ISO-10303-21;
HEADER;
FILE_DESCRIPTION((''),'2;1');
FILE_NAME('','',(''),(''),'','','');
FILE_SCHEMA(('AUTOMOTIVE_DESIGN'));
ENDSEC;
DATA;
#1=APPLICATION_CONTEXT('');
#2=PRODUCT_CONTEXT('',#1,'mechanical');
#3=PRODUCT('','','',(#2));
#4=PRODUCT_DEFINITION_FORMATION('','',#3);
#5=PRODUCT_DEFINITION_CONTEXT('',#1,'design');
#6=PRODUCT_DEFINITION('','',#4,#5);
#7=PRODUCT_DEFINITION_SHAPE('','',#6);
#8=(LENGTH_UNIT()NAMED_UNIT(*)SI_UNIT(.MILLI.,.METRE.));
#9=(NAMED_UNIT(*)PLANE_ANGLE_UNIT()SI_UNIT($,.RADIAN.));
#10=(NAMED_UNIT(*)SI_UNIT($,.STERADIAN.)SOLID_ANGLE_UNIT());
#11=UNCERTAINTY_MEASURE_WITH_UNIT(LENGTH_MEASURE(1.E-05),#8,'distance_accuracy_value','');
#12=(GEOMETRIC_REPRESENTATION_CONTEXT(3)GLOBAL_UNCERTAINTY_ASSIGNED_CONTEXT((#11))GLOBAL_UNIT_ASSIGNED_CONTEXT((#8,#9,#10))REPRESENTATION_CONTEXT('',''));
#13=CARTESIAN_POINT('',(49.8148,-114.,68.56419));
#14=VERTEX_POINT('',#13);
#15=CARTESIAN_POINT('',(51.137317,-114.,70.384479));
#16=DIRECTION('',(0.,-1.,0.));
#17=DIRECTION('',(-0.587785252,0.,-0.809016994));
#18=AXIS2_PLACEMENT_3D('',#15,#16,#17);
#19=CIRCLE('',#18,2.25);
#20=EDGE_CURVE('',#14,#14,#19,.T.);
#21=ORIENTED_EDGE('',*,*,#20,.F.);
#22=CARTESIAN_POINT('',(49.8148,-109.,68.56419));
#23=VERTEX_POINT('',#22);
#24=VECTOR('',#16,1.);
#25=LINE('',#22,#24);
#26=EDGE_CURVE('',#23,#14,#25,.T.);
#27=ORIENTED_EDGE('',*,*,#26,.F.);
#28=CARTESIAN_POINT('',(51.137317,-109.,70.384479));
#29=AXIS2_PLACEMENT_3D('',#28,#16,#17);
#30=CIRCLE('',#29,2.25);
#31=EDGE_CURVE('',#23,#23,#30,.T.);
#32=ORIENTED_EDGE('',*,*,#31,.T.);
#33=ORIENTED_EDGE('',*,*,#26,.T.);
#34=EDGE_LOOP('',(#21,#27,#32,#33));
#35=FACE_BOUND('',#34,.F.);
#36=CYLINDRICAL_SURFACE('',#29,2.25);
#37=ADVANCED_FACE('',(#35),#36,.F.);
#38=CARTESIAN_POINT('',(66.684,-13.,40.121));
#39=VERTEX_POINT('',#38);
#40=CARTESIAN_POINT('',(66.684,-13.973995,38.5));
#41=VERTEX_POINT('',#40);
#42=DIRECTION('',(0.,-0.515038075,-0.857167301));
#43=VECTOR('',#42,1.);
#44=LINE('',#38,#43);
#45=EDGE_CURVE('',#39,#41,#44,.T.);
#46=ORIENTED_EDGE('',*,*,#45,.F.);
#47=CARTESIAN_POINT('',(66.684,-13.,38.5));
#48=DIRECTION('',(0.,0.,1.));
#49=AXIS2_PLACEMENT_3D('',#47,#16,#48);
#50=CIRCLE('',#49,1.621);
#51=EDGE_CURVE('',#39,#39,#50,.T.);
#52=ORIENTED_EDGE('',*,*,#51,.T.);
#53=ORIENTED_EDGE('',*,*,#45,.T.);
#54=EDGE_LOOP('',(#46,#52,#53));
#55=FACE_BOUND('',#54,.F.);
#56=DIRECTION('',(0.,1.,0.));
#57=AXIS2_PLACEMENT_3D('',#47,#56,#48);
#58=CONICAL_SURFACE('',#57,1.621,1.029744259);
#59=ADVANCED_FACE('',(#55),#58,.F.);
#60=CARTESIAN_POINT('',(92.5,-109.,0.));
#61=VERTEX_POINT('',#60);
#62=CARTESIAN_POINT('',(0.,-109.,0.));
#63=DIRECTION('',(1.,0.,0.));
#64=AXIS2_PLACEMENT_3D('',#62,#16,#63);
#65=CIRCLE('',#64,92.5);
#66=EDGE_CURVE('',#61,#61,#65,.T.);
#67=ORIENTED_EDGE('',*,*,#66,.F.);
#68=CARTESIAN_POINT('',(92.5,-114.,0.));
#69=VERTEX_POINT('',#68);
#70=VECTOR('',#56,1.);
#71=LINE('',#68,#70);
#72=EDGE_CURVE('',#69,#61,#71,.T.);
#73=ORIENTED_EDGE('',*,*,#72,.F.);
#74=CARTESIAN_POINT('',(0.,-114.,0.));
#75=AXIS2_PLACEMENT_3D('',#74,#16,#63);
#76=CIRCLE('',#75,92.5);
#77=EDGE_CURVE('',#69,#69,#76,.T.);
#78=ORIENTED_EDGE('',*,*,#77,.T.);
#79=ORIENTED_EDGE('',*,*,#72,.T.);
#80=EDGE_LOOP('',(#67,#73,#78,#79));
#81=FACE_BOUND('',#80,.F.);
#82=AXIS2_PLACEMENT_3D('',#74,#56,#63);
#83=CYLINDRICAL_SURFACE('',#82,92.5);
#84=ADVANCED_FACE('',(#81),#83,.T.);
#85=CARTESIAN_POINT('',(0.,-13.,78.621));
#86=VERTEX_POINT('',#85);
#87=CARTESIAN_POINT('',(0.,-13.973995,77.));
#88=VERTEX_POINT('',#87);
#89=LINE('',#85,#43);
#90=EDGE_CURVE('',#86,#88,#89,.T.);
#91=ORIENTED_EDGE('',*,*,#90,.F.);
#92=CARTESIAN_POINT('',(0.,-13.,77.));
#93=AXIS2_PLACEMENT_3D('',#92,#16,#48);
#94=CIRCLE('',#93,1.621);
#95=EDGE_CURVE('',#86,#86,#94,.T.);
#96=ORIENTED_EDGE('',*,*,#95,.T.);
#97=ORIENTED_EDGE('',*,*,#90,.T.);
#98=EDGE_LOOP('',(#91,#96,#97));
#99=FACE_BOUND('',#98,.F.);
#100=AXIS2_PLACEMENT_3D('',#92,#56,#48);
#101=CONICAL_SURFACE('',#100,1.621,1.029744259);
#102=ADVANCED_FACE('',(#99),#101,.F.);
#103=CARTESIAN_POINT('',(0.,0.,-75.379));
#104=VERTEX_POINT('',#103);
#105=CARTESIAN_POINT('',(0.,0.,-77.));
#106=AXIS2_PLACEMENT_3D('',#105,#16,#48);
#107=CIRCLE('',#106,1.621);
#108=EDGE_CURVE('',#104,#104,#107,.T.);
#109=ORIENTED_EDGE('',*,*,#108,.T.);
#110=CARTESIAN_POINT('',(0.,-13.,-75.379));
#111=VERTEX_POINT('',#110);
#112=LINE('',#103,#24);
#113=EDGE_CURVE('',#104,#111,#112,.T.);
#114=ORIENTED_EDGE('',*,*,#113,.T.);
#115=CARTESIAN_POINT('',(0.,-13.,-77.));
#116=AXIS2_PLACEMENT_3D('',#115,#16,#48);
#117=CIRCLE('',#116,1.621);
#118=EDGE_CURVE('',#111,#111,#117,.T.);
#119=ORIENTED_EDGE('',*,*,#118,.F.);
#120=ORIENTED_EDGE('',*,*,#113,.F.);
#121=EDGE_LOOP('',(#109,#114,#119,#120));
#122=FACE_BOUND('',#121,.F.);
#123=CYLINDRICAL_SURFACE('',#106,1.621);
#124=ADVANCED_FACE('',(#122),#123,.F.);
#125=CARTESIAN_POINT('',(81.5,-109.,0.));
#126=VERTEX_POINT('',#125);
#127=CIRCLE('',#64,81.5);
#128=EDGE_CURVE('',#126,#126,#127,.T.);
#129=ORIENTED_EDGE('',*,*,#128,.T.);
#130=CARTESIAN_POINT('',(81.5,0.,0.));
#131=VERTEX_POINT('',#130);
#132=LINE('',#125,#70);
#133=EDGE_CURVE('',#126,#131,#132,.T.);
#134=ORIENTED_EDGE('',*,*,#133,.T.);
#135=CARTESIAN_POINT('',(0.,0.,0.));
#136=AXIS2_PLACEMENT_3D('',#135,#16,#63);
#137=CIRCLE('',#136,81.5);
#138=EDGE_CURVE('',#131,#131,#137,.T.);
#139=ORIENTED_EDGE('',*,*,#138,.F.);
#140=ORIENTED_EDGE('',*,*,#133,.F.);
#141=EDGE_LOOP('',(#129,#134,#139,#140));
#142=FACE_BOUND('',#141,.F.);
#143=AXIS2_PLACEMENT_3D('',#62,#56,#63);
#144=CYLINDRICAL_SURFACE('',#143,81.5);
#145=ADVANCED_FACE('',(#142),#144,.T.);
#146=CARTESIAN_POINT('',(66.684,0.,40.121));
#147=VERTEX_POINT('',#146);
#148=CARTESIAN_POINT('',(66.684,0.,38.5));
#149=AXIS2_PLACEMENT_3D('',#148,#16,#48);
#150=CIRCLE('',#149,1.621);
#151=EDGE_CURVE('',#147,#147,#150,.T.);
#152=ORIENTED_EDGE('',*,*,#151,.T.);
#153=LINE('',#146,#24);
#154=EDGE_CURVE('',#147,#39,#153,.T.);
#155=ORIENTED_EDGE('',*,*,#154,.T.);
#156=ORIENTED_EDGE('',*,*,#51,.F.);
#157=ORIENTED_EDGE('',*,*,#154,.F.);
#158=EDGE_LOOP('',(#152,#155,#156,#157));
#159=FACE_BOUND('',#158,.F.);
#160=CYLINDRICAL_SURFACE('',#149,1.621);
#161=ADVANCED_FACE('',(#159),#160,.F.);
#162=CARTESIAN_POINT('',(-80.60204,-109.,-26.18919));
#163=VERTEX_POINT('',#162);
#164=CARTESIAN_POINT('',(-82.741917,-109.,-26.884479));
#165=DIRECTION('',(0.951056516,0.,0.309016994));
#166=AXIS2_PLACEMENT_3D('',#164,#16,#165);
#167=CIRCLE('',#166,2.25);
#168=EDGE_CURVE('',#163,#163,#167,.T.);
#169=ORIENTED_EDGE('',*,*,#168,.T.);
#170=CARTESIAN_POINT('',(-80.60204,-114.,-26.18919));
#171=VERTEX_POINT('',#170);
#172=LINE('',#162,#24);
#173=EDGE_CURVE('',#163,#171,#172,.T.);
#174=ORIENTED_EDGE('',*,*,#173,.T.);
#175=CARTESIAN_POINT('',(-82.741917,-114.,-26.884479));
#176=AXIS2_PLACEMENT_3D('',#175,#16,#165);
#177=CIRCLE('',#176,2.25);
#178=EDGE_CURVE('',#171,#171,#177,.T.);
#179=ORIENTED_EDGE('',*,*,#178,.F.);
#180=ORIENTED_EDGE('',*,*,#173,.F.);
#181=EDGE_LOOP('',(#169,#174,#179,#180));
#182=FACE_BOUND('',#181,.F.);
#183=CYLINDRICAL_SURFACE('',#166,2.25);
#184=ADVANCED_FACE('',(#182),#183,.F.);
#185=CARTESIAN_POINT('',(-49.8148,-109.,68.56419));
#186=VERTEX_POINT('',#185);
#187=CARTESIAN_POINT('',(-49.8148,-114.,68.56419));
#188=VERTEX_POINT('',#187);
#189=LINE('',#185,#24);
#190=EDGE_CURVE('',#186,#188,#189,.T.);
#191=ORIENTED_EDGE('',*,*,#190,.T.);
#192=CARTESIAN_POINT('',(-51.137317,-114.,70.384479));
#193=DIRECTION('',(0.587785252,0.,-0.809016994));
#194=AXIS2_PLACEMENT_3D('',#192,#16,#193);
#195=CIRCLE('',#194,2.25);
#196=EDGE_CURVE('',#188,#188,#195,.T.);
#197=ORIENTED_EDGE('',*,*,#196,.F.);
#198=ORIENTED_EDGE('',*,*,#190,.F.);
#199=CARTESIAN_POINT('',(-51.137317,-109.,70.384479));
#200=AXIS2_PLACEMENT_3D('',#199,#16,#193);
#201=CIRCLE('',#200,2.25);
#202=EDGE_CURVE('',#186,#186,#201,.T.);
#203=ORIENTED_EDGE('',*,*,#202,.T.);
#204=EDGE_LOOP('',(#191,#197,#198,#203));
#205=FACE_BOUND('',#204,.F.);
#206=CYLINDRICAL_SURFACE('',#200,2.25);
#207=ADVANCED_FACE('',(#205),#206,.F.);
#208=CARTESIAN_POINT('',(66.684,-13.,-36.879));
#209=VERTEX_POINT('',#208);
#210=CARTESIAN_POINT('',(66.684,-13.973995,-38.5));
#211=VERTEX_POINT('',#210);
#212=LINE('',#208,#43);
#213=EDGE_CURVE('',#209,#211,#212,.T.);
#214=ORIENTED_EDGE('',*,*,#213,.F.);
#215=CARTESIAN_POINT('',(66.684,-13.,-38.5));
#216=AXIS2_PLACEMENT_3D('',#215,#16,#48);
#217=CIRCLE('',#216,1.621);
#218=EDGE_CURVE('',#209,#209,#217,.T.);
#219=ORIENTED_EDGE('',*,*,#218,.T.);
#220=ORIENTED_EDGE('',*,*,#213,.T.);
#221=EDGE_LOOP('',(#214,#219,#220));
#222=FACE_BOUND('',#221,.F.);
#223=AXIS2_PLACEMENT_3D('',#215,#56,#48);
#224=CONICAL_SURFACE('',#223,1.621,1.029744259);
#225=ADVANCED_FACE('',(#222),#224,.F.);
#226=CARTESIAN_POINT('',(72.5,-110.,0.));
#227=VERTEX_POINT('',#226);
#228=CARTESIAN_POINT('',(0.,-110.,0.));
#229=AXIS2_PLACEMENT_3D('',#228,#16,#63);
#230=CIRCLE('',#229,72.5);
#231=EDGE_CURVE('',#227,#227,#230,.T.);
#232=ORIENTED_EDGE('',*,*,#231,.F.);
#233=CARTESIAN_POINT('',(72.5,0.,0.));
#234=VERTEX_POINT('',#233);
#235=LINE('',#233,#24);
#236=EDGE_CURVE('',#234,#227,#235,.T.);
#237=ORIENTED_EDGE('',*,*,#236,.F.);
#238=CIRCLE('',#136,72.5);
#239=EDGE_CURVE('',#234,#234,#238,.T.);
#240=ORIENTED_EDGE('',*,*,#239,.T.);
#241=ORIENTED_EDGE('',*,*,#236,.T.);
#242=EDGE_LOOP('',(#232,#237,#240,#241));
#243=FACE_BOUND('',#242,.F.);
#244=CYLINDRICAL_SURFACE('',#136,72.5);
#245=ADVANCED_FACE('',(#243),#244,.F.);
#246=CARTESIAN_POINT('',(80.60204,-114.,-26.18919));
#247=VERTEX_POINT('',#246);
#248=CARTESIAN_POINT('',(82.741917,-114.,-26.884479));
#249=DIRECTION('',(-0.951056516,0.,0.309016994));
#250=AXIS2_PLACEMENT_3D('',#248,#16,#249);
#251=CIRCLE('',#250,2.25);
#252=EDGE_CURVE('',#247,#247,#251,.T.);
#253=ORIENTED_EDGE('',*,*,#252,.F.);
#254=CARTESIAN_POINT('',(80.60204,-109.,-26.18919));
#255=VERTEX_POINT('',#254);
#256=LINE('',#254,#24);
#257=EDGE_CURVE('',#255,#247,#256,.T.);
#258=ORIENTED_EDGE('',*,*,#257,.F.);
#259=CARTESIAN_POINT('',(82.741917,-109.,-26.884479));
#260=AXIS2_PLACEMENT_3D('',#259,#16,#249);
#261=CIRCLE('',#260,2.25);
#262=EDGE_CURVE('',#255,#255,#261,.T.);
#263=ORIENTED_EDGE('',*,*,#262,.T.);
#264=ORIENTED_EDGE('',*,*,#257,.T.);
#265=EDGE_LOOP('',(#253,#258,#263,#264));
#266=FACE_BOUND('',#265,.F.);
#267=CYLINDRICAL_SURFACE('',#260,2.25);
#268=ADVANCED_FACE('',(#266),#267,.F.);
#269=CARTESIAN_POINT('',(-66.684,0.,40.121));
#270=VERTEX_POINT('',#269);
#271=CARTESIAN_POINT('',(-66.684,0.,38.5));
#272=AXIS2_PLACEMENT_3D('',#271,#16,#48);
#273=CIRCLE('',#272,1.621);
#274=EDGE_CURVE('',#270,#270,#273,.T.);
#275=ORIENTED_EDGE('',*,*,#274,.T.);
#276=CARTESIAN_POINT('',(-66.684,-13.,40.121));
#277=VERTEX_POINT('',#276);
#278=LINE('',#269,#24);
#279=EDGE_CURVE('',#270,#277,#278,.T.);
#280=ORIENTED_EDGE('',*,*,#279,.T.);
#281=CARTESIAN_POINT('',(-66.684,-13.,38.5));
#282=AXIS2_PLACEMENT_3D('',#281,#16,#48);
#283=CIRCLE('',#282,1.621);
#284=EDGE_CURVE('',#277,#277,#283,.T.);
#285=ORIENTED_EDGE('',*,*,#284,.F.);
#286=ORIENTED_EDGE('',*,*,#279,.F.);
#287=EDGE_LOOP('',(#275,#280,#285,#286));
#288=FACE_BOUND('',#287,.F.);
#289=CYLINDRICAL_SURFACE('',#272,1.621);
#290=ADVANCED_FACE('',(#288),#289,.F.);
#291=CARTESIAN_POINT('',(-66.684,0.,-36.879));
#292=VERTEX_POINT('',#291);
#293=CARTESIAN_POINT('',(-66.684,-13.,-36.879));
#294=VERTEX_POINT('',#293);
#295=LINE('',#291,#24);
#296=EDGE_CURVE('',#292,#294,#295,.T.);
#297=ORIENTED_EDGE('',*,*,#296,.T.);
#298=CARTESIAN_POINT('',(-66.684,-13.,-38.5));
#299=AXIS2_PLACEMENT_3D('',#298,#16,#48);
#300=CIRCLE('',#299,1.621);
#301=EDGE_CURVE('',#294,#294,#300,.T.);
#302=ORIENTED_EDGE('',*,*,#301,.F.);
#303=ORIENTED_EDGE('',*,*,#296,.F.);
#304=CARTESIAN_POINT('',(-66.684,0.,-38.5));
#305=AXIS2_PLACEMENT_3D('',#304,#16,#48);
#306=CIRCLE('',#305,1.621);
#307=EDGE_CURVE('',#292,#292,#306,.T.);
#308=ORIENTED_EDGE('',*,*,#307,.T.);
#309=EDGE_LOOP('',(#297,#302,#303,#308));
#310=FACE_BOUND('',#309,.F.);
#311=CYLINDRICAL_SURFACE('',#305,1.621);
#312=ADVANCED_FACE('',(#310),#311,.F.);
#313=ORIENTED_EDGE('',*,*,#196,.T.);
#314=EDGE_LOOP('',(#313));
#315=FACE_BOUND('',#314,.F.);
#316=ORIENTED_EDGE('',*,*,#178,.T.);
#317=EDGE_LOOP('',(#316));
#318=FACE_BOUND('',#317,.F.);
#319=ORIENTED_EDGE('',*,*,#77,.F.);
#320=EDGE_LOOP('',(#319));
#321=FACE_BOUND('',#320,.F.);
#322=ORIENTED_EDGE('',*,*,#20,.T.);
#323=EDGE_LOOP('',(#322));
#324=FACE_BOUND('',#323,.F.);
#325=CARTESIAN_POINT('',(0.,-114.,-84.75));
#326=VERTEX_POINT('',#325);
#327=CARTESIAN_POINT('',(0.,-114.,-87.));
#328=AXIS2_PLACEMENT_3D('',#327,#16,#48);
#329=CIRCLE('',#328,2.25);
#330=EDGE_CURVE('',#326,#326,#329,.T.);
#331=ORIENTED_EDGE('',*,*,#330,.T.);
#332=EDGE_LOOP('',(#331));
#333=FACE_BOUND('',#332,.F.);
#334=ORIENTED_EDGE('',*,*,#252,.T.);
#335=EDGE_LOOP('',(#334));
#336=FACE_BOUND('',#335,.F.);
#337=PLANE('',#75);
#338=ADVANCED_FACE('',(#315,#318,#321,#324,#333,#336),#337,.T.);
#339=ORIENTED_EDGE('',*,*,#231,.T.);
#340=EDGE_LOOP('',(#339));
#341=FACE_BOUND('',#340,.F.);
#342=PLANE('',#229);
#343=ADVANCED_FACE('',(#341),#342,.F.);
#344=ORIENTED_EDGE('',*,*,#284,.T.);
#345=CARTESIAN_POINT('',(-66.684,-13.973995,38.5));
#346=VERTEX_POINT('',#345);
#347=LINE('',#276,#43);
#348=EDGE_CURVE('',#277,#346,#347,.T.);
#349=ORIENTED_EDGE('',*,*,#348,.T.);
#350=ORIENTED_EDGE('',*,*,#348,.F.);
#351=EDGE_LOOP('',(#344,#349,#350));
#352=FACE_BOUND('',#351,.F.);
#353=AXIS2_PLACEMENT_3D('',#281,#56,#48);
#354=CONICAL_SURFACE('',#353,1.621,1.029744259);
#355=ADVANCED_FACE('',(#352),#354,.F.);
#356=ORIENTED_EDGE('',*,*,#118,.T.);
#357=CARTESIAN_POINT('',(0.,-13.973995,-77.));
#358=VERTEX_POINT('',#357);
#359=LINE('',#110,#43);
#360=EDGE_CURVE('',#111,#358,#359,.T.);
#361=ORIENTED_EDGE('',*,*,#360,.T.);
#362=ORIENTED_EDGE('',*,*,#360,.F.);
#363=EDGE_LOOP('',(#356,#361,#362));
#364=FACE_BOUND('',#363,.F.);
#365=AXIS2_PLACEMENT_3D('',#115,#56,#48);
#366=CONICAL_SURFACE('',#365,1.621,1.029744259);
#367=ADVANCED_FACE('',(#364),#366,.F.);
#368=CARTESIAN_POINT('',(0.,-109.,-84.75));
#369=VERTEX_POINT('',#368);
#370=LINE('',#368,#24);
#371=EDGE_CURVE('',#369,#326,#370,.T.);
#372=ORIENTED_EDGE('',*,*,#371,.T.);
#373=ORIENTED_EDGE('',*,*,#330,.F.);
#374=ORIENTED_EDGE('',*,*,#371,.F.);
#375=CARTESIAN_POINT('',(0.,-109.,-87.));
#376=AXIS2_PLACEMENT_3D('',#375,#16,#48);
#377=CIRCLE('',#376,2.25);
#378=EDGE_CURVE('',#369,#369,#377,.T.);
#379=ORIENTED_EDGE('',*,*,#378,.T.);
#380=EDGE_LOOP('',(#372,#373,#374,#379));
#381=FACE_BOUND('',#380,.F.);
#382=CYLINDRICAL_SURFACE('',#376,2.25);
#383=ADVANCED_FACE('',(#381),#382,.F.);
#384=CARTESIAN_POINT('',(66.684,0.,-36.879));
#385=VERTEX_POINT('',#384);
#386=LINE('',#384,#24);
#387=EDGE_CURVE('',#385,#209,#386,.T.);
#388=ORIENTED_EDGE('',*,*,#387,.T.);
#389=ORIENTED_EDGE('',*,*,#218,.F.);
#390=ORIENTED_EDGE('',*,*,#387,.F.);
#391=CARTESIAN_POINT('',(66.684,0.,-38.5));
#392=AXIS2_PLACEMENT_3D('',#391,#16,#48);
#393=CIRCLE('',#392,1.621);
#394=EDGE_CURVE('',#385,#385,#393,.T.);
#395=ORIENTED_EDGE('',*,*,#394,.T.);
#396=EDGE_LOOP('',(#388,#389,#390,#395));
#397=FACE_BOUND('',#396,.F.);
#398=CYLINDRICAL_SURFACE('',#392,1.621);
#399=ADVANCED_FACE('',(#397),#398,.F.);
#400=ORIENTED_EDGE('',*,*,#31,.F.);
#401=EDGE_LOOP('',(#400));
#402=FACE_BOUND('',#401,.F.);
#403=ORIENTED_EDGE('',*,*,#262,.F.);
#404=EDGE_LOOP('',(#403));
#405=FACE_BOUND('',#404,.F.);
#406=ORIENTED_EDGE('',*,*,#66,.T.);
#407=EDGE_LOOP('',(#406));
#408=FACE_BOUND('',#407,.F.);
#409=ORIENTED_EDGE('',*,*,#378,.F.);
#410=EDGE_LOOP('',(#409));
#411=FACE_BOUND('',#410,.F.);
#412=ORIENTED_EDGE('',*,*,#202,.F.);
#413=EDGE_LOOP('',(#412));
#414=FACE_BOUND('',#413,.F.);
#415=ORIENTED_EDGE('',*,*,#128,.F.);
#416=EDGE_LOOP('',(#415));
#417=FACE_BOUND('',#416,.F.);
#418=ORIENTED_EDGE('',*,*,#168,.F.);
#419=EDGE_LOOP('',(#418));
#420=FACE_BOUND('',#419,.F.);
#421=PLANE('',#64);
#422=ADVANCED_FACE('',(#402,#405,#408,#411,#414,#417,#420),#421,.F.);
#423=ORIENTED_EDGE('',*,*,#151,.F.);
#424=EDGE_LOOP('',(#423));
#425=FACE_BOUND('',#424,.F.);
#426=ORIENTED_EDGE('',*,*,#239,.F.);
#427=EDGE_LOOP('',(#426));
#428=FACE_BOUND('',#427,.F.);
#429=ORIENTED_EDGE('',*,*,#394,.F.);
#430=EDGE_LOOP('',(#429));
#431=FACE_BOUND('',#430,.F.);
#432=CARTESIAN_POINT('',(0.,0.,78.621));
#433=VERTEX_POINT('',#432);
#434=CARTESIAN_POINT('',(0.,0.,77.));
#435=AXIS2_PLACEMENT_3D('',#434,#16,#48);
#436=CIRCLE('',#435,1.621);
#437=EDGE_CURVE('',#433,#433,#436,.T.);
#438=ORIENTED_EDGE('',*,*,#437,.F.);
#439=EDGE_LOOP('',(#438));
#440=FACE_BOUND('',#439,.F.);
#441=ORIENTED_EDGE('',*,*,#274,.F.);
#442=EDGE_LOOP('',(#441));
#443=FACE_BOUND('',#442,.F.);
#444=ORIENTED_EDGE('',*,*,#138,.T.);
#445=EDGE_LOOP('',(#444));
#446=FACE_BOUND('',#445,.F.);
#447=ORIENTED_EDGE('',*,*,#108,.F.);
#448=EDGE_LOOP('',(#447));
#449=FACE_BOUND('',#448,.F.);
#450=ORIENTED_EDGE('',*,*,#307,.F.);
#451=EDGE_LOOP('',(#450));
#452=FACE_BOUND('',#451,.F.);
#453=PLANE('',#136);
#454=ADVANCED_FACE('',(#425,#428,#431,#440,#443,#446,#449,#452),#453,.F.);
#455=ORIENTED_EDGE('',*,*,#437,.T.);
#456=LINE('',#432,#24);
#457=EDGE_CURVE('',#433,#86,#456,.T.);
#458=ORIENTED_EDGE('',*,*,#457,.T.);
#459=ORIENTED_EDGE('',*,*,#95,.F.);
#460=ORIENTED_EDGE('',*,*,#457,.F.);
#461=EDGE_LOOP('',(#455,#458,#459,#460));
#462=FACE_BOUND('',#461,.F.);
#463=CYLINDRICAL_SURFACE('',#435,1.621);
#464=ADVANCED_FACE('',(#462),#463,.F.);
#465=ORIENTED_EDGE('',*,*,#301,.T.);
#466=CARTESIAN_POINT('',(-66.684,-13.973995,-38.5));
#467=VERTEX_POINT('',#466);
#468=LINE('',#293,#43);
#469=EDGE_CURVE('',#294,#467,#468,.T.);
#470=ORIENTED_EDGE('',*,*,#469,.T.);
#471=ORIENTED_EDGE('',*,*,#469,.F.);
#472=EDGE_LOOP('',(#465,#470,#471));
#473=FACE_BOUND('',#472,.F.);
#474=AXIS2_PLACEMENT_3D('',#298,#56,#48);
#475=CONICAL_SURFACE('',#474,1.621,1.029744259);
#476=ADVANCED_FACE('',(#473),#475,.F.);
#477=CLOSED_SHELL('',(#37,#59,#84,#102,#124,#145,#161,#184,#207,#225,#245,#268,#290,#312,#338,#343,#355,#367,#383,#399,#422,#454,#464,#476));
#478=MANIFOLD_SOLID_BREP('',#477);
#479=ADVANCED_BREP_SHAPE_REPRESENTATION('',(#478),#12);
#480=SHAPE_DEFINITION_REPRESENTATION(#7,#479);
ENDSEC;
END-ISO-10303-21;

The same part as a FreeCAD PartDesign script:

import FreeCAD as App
import Part
import Sketcher


def add_polygon(sketch, points):
    """Adds a closed chain of lines whose ends are joined by coincident constraints."""
    first, n = sketch.GeometryCount, len(points)
    for a, b in zip(points, points[1:] + points[:1]):
        sketch.addGeometry(Part.LineSegment(App.Vector(*a, 0), App.Vector(*b, 0)), False)
    for i in range(n):
        sketch.addConstraint(Sketcher.Constraint("Coincident", first + i, 2, first + (i + 1) % n, 1))

doc = App.newDocument("Part")
body = doc.addObject("PartDesign::Body", "Body")

# Sketch on XY plane
sketch1 = body.newObject("Sketcher::SketchObject", "Sketch")
sketch1.AttachmentSupport = (doc.getObject("XY_Plane"), [""])
sketch1.MapMode = "FlatFace"
add_polygon(sketch1, [(0, -110), (0, -114), (92.5, -114), (92.5, -109), (81.5, -109), (81.5, 0), (72.5, 0), (72.5, -110)])  # lines 0-7
sketch1.addConstraint([
    Sketcher.Constraint("Vertical", 0),
    Sketcher.Constraint("Horizontal", 1),
    Sketcher.Constraint("Vertical", 2),
    Sketcher.Constraint("Horizontal", 3),
    Sketcher.Constraint("Vertical", 4),
    Sketcher.Constraint("Horizontal", 5),
    Sketcher.Constraint("Vertical", 6),
    Sketcher.Constraint("Horizontal", 7),
    Sketcher.Constraint("PointOnObject", 0, 2, -2),
    Sketcher.Constraint("PointOnObject", 4, 2, -1),
    Sketcher.Constraint("DistanceX", 3, 2, 3, 1, 11.0),
    Sketcher.Constraint("DistanceX", 5, 2, 5, 1, 9.0),
    Sketcher.Constraint("DistanceY", 0, 2, 0, 1, 4.0),
    Sketcher.Constraint("DistanceY", 2, 1, 2, 2, 5.0),
    Sketcher.Constraint("DistanceY", 6, 2, 6, 1, 110.0),
    Sketcher.Constraint("DistanceX", -1, 1, 3, 2, 81.5),
])
revolution = body.newObject("PartDesign::Revolution", "Revolution")
revolution.Profile = sketch1
revolution.ReferenceAxis = (sketch1, ["V_Axis"])
revolution.Angle = 360

# Sketch on XZ plane
sketch2 = body.newObject("Sketcher::SketchObject", "Sketch001")
sketch2.AttachmentSupport = (doc.getObject("XZ_Plane"), [""])
sketch2.MapMode = "FlatFace"
sketch2.AttachmentOffset = App.Placement(App.Vector(0, 0, 109), App.Rotation())
sketch2.addGeometry(Part.Circle(App.Vector(0, -87, 0), App.Vector(0, 0, 1), 2.2), False)
sketch2.addConstraint([
    Sketcher.Constraint("PointOnObject", 0, 3, -2),
    Sketcher.Constraint("Diameter", 0, 4.5),
    Sketcher.Constraint("DistanceY", 0, 3, -1, 1, 87.0),
])
doc.recompute()
hole = body.newObject("PartDesign::Hole", "Hole")
hole.Profile = sketch2
hole.ThreadType = "None"
hole.Diameter = 4.5
hole.DepthType = "ThroughAll"
hole.Reversed = True
doc.recompute()

polarpattern = body.newObject("PartDesign::PolarPattern", "PolarPattern")
polarpattern.Originals = [hole]
polarpattern.Axis = (doc.getObject("Y_Axis"), [""])
polarpattern.Angle = 360
polarpattern.Occurrences = 5
body.Tip = polarpattern

# Sketch on XZ plane
sketch3 = body.newObject("Sketcher::SketchObject", "Sketch002")
sketch3.AttachmentSupport = (doc.getObject("XZ_Plane"), [""])
sketch3.MapMode = "FlatFace"
sketch3.addGeometry([
    Part.Circle(App.Vector(0, -77, 0), App.Vector(0, 0, 1), 1.6),  # 0
    Part.Circle(App.Vector(-66.7, -38.5, 0), App.Vector(0, 0, 1), 1.6),  # 1
    Part.Circle(App.Vector(-66.7, 38.5, 0), App.Vector(0, 0, 1), 1.6),  # 2
    Part.Circle(App.Vector(0, 77, 0), App.Vector(0, 0, 1), 1.6),  # 3
    Part.Circle(App.Vector(66.7, 38.5, 0), App.Vector(0, 0, 1), 1.6),  # 4
    Part.Circle(App.Vector(66.7, -38.5, 0), App.Vector(0, 0, 1), 1.6),  # 5
], False)
sketch3.addConstraint([
    Sketcher.Constraint("Equal", 0, 1),
    Sketcher.Constraint("Equal", 1, 2),
    Sketcher.Constraint("Equal", 2, 3),
    Sketcher.Constraint("Equal", 3, 4),
    Sketcher.Constraint("Equal", 4, 5),
    Sketcher.Constraint("Symmetric", 0, 3, 3, 3, -1, 1),
    Sketcher.Constraint("Symmetric", 1, 3, 4, 3, -1, 1),
    Sketcher.Constraint("Symmetric", 2, 3, 5, 3, -1, 1),
    Sketcher.Constraint("Symmetric", 2, 3, 4, 3, -2),
    Sketcher.Constraint("PointOnObject", 0, 3, -2),
    Sketcher.Constraint("Diameter", 0, 3.242),
    Sketcher.Constraint("DistanceY", 0, 3, -1, 1, 77.0),
    Sketcher.Constraint("DistanceY", 1, 3, 2, 3, 77.0),
    Sketcher.Constraint("DistanceX", 1, 3, -1, 1, 66.684),
])
doc.recompute()
hole2 = body.newObject("PartDesign::Hole", "Hole001")
hole2.Profile = sketch3
hole2.ThreadType = "None"
hole2.Diameter = 3.242
hole2.DepthType = "Dimension"
hole2.Depth = 13
hole2.DrillPoint = "Angled"
hole2.DrillPointAngle = 118
hole2.Reversed = True

doc.recompute()
